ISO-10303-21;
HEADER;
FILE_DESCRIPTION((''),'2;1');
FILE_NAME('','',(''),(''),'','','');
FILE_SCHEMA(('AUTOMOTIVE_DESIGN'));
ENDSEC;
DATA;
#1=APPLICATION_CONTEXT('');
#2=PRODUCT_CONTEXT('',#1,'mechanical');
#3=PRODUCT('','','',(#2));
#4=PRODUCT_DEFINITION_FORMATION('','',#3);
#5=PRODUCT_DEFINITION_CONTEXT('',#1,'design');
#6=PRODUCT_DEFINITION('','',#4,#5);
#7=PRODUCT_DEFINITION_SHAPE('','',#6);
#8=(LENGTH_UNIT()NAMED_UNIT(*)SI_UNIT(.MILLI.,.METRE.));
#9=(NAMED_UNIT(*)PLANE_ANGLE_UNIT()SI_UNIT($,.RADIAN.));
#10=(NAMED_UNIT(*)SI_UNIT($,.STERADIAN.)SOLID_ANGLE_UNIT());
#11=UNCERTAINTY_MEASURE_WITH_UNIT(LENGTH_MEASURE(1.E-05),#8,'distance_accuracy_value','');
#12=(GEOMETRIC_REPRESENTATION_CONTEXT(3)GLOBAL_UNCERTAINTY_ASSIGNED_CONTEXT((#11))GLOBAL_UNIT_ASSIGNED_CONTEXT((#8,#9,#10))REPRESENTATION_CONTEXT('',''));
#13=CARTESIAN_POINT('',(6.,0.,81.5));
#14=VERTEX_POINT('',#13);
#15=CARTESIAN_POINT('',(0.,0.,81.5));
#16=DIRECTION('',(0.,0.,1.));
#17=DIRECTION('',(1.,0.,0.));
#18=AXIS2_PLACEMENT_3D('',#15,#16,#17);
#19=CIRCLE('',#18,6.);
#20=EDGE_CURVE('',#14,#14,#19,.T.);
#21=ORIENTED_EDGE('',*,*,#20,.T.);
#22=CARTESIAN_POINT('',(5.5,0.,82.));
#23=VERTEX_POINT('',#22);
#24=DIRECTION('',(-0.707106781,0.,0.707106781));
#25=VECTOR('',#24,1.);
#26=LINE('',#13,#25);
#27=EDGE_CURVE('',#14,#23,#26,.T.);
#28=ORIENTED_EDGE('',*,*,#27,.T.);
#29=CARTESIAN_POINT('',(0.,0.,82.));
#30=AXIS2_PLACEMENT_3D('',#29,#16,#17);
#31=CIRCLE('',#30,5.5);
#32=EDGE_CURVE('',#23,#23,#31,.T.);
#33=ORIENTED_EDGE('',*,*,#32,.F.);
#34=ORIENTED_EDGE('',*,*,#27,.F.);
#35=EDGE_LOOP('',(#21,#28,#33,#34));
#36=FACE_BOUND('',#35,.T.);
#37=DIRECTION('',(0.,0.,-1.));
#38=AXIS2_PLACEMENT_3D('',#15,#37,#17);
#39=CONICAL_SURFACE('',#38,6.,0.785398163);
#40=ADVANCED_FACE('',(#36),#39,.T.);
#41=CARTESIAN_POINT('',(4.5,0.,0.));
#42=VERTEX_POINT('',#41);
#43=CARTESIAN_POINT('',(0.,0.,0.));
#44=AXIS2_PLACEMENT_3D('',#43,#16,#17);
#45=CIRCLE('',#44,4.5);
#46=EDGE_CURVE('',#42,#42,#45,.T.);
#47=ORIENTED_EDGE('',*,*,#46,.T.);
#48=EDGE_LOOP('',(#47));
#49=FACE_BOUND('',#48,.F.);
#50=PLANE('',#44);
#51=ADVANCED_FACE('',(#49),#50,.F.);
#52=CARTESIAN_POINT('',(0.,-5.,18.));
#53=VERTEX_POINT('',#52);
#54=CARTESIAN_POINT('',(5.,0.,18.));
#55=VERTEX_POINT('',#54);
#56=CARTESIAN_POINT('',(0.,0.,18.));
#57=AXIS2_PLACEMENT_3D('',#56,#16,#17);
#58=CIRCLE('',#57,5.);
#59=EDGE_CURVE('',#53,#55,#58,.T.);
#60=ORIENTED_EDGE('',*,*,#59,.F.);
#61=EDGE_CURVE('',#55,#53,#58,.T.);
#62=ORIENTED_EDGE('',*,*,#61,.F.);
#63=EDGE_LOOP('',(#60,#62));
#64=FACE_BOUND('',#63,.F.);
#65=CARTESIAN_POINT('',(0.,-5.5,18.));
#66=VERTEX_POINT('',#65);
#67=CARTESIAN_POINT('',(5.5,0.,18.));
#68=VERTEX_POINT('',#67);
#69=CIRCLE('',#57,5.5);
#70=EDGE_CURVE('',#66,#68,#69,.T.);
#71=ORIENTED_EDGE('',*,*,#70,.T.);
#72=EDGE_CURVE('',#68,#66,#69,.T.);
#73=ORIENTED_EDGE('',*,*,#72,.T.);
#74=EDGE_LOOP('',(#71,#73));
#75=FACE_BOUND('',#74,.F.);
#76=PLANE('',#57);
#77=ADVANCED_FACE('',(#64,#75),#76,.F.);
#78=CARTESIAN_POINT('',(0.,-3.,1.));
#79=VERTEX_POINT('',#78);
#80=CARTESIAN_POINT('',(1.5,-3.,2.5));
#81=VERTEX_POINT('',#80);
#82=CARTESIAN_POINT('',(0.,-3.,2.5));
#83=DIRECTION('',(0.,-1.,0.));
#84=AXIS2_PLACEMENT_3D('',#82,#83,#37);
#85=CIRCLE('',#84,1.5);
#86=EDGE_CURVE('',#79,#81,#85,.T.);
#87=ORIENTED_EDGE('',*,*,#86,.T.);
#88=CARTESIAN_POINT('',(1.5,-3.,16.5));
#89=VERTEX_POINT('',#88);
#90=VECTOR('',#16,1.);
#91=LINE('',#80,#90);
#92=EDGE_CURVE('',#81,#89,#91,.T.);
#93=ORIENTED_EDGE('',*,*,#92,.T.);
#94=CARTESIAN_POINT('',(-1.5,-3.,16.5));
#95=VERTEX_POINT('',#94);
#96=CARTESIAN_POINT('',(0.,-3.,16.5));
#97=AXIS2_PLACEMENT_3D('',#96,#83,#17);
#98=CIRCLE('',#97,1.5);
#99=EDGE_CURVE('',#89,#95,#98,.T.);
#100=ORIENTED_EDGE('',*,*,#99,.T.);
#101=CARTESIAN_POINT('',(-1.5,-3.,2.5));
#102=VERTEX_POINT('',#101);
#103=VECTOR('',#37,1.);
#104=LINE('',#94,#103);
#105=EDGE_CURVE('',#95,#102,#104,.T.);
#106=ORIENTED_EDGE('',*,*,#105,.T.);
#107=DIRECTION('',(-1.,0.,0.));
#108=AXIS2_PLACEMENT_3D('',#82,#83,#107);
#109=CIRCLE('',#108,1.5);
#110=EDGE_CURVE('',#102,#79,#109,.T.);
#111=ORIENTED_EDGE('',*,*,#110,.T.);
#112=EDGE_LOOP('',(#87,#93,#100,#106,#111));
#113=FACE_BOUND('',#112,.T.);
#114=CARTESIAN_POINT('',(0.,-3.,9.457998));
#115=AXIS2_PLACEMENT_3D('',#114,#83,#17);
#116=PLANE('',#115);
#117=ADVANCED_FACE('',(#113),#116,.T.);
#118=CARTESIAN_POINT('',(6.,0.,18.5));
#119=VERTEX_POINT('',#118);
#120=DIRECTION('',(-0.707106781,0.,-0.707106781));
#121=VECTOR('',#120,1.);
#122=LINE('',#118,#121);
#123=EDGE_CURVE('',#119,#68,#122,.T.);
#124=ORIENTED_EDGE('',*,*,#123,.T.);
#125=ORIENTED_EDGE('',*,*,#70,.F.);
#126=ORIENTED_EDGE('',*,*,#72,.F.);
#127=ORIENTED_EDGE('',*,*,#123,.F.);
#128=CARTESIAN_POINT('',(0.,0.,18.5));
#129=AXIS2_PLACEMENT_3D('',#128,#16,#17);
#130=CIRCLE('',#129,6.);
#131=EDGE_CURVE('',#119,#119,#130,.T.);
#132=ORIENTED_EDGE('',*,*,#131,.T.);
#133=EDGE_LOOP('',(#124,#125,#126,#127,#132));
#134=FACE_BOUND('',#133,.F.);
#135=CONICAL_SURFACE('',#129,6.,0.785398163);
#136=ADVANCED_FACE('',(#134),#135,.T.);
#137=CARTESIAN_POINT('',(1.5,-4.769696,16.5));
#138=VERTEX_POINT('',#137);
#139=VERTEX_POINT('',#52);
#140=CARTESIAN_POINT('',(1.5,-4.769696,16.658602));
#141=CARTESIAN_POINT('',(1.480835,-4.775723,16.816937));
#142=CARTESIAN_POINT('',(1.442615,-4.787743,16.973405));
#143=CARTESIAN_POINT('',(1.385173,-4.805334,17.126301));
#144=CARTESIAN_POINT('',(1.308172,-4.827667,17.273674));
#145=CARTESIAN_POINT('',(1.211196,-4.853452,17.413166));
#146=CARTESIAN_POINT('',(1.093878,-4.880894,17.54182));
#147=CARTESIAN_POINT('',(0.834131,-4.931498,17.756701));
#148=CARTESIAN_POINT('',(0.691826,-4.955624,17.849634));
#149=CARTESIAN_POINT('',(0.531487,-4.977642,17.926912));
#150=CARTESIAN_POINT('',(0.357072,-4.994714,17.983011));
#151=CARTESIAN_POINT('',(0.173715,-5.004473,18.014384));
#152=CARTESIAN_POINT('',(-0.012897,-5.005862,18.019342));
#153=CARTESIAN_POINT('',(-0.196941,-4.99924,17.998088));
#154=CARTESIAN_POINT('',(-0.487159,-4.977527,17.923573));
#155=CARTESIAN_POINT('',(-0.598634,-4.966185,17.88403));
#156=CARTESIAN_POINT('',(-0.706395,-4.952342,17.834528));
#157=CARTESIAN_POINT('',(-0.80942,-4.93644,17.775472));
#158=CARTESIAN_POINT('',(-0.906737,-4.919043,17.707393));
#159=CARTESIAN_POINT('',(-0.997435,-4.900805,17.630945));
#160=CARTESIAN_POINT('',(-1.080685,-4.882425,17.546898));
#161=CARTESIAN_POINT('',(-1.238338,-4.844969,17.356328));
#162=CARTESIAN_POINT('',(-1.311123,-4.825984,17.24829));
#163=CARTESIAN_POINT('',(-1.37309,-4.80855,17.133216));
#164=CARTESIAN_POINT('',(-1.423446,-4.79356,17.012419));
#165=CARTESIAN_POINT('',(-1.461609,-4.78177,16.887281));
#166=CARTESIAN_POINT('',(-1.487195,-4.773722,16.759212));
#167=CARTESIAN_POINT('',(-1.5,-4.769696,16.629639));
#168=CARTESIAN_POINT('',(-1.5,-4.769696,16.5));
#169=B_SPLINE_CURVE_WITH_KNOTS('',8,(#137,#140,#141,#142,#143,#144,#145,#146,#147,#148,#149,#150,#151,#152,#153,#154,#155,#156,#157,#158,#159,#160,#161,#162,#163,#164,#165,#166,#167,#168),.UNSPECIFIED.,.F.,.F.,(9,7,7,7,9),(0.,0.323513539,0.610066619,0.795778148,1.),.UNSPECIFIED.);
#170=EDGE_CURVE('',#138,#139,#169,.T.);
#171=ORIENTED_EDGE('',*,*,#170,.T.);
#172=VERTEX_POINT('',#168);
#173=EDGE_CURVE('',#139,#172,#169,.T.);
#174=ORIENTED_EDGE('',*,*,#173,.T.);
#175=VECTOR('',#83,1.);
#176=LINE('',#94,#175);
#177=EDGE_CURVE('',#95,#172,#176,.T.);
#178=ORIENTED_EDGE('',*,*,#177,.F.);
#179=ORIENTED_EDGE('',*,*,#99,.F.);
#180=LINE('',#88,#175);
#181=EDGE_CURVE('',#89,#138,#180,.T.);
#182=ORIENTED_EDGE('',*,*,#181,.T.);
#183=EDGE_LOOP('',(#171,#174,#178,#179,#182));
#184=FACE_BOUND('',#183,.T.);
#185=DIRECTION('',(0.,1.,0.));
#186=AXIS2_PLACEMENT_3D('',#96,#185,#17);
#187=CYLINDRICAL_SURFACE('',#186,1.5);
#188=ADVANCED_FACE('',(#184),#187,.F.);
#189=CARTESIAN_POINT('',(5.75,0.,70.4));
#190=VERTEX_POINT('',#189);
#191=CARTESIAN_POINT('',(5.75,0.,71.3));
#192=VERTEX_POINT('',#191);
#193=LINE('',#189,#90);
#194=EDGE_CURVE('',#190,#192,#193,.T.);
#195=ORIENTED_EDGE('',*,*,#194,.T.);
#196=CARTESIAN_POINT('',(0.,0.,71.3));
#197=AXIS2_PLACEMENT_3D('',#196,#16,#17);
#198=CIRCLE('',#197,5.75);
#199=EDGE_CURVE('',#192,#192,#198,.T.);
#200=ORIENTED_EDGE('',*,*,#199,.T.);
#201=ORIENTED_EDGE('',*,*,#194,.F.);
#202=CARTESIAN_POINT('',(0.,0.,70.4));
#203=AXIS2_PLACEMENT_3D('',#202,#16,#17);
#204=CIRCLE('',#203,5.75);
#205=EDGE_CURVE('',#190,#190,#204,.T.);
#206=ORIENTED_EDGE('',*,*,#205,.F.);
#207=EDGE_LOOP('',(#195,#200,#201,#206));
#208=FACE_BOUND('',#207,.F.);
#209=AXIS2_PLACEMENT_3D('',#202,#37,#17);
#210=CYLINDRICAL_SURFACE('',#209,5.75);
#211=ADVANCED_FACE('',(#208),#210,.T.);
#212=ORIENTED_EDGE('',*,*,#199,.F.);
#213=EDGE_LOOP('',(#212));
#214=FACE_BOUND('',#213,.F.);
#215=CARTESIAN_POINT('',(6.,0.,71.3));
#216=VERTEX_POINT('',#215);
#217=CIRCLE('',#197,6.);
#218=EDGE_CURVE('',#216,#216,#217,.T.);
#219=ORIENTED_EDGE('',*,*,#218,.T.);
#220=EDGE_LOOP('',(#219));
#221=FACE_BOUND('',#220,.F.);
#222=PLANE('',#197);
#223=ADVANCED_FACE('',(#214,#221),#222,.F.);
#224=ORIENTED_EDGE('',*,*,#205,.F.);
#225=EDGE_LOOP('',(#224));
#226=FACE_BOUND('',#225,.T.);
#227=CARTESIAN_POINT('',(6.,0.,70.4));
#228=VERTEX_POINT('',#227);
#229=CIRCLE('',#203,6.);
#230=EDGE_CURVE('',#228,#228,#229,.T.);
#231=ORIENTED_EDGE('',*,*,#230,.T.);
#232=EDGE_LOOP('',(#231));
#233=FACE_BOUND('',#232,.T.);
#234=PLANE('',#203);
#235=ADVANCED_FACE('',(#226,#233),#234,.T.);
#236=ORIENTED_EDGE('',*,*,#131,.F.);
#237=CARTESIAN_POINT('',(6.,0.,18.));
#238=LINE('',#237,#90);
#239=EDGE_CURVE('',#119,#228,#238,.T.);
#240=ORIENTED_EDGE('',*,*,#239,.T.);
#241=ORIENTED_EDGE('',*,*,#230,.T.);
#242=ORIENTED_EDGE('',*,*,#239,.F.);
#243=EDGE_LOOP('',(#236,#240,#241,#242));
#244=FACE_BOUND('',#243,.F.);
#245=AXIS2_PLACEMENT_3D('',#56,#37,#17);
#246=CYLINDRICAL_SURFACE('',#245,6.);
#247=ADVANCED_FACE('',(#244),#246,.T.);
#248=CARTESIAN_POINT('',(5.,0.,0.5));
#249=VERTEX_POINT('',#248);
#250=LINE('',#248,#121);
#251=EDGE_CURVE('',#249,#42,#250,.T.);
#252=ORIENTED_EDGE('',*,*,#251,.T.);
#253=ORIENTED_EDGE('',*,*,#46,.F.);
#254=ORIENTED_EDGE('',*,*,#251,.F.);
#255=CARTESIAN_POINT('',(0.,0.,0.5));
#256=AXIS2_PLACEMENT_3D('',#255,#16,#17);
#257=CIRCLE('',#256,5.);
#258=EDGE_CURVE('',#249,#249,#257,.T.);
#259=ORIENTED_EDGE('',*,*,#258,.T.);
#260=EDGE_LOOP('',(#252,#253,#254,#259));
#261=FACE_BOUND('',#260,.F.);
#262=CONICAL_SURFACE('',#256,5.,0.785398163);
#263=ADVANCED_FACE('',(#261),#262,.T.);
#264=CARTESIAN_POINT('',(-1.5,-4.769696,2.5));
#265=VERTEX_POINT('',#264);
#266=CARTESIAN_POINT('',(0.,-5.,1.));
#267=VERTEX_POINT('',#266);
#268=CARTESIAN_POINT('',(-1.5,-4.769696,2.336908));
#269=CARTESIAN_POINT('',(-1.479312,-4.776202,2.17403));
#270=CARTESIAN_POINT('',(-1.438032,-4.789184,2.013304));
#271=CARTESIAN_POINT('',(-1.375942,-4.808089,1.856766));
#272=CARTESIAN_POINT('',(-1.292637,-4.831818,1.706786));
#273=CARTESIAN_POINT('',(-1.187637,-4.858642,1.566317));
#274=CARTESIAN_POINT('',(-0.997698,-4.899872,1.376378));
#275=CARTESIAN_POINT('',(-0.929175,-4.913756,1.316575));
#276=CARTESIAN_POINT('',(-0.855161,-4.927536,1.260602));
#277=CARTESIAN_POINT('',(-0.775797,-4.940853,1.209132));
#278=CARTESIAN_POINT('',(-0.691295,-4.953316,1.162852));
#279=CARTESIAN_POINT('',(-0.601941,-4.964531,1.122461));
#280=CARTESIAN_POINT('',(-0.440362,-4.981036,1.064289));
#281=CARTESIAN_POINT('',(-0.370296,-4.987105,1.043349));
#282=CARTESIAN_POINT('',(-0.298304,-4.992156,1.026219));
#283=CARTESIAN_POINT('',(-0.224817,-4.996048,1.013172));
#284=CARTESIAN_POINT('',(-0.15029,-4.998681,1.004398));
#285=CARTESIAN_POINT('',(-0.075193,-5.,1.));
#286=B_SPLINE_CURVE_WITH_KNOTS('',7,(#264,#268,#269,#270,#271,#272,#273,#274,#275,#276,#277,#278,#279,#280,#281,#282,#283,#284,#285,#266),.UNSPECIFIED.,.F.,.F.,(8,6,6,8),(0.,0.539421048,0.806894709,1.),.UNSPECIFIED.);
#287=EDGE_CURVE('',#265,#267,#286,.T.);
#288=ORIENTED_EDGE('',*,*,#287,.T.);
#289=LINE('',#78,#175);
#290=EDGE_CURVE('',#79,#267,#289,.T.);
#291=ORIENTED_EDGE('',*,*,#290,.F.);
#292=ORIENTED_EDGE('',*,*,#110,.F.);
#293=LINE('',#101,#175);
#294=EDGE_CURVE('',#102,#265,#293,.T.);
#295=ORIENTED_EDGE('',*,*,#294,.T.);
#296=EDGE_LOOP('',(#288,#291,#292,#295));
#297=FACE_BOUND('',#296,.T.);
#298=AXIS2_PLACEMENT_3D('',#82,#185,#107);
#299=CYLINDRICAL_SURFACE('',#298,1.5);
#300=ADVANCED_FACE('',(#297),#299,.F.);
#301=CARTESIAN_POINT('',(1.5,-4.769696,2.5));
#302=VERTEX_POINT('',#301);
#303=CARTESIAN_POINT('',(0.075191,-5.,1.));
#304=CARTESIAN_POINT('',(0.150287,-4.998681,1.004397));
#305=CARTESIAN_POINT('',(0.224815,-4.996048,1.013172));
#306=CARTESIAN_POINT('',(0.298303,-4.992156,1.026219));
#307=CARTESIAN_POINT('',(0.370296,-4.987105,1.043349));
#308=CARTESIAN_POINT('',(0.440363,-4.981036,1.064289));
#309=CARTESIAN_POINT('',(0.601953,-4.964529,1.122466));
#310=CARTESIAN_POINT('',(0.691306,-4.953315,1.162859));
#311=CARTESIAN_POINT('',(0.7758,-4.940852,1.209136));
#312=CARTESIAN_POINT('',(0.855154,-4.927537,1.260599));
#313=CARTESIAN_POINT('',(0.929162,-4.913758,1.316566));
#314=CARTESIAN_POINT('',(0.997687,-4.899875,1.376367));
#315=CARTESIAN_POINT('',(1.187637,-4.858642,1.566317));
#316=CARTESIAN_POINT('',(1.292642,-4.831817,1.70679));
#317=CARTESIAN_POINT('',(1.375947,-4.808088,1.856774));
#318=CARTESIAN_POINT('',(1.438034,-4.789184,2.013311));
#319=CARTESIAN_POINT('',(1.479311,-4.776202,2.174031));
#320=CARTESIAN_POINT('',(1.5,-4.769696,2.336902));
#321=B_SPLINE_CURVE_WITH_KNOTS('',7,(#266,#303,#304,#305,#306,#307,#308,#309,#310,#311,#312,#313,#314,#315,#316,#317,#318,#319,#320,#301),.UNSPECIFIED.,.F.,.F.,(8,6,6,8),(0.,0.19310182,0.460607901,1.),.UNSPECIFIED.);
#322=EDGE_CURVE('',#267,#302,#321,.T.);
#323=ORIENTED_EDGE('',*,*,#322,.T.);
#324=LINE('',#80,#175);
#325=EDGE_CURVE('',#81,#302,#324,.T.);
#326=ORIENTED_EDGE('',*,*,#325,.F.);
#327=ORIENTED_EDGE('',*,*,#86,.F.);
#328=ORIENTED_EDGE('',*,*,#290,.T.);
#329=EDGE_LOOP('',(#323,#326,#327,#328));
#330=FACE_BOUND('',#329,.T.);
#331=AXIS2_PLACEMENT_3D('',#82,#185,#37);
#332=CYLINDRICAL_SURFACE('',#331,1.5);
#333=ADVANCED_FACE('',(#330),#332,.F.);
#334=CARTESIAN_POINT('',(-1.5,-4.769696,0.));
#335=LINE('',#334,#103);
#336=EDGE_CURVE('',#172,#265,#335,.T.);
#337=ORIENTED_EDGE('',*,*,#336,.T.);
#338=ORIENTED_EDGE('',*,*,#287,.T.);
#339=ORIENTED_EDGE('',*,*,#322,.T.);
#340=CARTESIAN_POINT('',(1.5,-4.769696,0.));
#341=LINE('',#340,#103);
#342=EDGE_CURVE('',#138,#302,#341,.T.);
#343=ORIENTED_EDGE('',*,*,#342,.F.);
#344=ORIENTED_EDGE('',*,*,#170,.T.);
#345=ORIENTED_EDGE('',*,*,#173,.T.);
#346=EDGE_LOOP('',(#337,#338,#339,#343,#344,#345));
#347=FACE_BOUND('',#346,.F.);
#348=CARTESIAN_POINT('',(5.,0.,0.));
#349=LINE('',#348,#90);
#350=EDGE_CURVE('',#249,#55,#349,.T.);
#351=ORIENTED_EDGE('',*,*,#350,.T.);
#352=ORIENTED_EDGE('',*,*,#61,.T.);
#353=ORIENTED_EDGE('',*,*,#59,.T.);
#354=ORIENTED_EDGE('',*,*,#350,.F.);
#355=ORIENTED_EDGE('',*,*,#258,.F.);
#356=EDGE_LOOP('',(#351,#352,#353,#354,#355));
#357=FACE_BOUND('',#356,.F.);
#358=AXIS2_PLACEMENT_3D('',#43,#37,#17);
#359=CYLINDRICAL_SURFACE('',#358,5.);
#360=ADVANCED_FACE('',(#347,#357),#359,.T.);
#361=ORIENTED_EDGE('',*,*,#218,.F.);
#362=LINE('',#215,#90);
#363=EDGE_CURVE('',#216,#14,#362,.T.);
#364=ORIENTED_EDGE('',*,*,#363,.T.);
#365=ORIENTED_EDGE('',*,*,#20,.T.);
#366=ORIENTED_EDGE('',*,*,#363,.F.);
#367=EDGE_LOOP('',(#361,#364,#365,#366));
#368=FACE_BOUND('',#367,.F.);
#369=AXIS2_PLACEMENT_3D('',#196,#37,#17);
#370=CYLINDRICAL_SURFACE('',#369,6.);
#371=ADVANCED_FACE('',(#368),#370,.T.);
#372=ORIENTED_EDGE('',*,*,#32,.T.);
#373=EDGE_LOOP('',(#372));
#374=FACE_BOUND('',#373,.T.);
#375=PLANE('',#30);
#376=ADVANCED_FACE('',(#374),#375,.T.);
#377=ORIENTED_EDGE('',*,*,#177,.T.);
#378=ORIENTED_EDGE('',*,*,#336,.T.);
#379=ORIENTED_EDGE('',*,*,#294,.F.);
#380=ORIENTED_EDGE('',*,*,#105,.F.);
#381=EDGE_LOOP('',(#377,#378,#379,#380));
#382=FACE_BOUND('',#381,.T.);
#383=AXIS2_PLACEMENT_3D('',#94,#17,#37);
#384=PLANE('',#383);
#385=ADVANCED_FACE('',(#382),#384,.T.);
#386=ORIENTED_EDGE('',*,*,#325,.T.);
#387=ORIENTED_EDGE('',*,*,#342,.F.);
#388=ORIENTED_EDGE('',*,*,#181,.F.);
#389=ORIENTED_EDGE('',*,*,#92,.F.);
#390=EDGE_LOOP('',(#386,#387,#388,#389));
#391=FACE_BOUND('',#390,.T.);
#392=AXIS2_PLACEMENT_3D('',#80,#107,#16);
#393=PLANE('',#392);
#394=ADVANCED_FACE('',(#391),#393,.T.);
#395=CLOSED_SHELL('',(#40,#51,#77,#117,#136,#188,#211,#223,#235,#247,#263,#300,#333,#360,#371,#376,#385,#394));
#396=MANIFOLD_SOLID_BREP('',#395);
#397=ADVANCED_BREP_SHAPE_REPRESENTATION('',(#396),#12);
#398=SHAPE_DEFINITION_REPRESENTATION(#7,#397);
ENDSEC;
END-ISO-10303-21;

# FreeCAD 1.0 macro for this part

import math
import FreeCAD as App
import Part
import Sketcher
Q = App.Units.Quantity


def edges_at(feature, points):
    """Names of the edges that pass closest to the given points."""
    edges = feature.Shape.Edges
    near = lambda p: min(range(len(edges)), key=lambda i: edges[i].distToShape(Part.Vertex(*p))[0])
    return sorted({f"Edge{near(p) + 1}" for p in points})

doc = App.newDocument("Part")
body = doc.addObject("PartDesign::Body", "Body")

# Sketch on XY plane
sketch1 = body.newObject("Sketcher::SketchObject", "Sketch")
sketch1.AttachmentSupport = (doc.getObject("XY_Plane"), [""])
sketch1.MapMode = "FlatFace"
sketch1.addGeometry(Part.Circle(App.Vector(0, 0, 0), App.Vector(0, 0, 1), 5), False)
sketch1.addConstraint(Sketcher.Constraint("Coincident", 0, 3, -1, 1))
sketch1.addConstraint(Sketcher.Constraint("Diameter", 0, Q("10 mm")))
pad1 = body.newObject("PartDesign::Pad", "Pad")
pad1.Profile = sketch1
pad1.Length = 18

# Sketch on XY plane
sketch2 = body.newObject("Sketcher::SketchObject", "Sketch001")
sketch2.AttachmentSupport = (doc.getObject("XY_Plane"), [""])
sketch2.MapMode = "FlatFace"
sketch2.AttachmentOffset = App.Placement(App.Vector(0, 0, 18), App.Rotation())
sketch2.addGeometry(Part.Circle(App.Vector(0, 0, 0), App.Vector(0, 0, 1), 6), False)
sketch2.addConstraint(Sketcher.Constraint("Coincident", 0, 3, -1, 1))
sketch2.addConstraint(Sketcher.Constraint("Diameter", 0, Q("12 mm")))
pad2 = body.newObject("PartDesign::Pad", "Pad001")
pad2.Profile = sketch2
pad2.Length = 52.4

# Sketch on XY plane
sketch3 = body.newObject("Sketcher::SketchObject", "Sketch002")
sketch3.AttachmentSupport = (doc.getObject("XY_Plane"), [""])
sketch3.MapMode = "FlatFace"
sketch3.AttachmentOffset = App.Placement(App.Vector(0, 0, 70.4), App.Rotation())
sketch3.addGeometry(Part.Circle(App.Vector(0, 0, 0), App.Vector(0, 0, 1), 6), False)
sketch3.addConstraint(Sketcher.Constraint("Coincident", 0, 3, -1, 1))
sketch3.addConstraint(Sketcher.Constraint("Diameter", 0, Q("11.5 mm")))
pad3 = body.newObject("PartDesign::Pad", "Pad002")
pad3.Profile = sketch3
pad3.Length = 0.9

# Sketch on XY plane
sketch4 = body.newObject("Sketcher::SketchObject", "Sketch003")
sketch4.AttachmentSupport = (doc.getObject("XY_Plane"), [""])
sketch4.MapMode = "FlatFace"
sketch4.AttachmentOffset = App.Placement(App.Vector(0, 0, 71.3), App.Rotation())
sketch4.addGeometry(Part.Circle(App.Vector(0, 0, 0), App.Vector(0, 0, 1), 6), False)
sketch4.addConstraint(Sketcher.Constraint("Coincident", 0, 3, -1, 1))
sketch4.addConstraint(Sketcher.Constraint("Diameter", 0, Q("12 mm")))
pad4 = body.newObject("PartDesign::Pad", "Pad003")
pad4.Profile = sketch4
pad4.Length = 10.7
doc.recompute()

chamfer = body.newObject("PartDesign::Chamfer", "Chamfer")
chamfer.Base = (pad4, edges_at(pad4, [(-6, 0, 82)]))
chamfer.ChamferType = "Two distances"
chamfer.Size = 0.5
chamfer.Size2 = 0.5
doc.recompute()

chamfer2 = body.newObject("PartDesign::Chamfer", "Chamfer001")
chamfer2.Base = (chamfer, edges_at(chamfer, [(-6, 0, 18)]))
chamfer2.ChamferType = "Two distances"
chamfer2.Size = 0.5
chamfer2.Size2 = 0.5
doc.recompute()

chamfer3 = body.newObject("PartDesign::Chamfer", "Chamfer002")
chamfer3.Base = (chamfer2, edges_at(chamfer2, [(-5, 0, 0)]))
chamfer3.ChamferType = "Two distances"
chamfer3.Size = 0.5
chamfer3.Size2 = 0.5

# Sketch on XZ plane
sketch5 = body.newObject("Sketcher::SketchObject", "Sketch004")
sketch5.AttachmentSupport = (doc.getObject("XZ_Plane"), [""])
sketch5.MapMode = "FlatFace"
sketch5.AttachmentOffset = App.Placement(App.Vector(0, 0, 3), App.Rotation())
sketch5.addGeometry(Part.LineSegment(App.Vector(1.5, 2.5, 0), App.Vector(1.5, 16.5, 0)), False)
sketch5.addGeometry(Part.ArcOfCircle(Part.Circle(App.Vector(0, 16.5, 0), App.Vector(0, 0, 1), 1.5), math.radians(0), math.radians(180)), False)
sketch5.addGeometry(Part.LineSegment(App.Vector(-1.5, 16.5, 0), App.Vector(-1.5, 2.5, 0)), False)
sketch5.addGeometry(Part.ArcOfCircle(Part.Circle(App.Vector(0, 2.5, 0), App.Vector(0, 0, 1), 1.5), math.radians(180), math.radians(270)), False)
sketch5.addGeometry(Part.ArcOfCircle(Part.Circle(App.Vector(0, 2.5, 0), App.Vector(0, 0, 1), 1.5), math.radians(-90), math.radians(0)), False)
sketch5.addConstraint(Sketcher.Constraint("Tangent", 0, 2, 1, 1))
sketch5.addConstraint(Sketcher.Constraint("Tangent", 1, 2, 2, 1))
sketch5.addConstraint(Sketcher.Constraint("Tangent", 2, 2, 3, 1))
sketch5.addConstraint(Sketcher.Constraint("Tangent", 3, 2, 4, 1))
sketch5.addConstraint(Sketcher.Constraint("Tangent", 4, 2, 0, 1))
sketch5.addConstraint(Sketcher.Constraint("Vertical", 0))
sketch5.addConstraint(Sketcher.Constraint("Vertical", 2))
sketch5.addConstraint(Sketcher.Constraint("Equal", 1, 3))
sketch5.addConstraint(Sketcher.Constraint("PointOnObject", 1, 3, -2))
sketch5.addConstraint(Sketcher.Constraint("PointOnObject", 3, 2, -2))
sketch5.addConstraint(Sketcher.Constraint("Radius", 1, Q("1.5 mm")))
sketch5.addConstraint(Sketcher.Constraint("DistanceY", 0, 1, 0, 2, Q("14 mm")))
sketch5.addConstraint(Sketcher.Constraint("DistanceY", -1, 1, 3, 2, Q("1 mm")))
pocket1 = body.newObject("PartDesign::Pocket", "Pocket")
pocket1.Profile = sketch5
pocket1.Length = 22
pocket1.Reversed = True

doc.recompute()
